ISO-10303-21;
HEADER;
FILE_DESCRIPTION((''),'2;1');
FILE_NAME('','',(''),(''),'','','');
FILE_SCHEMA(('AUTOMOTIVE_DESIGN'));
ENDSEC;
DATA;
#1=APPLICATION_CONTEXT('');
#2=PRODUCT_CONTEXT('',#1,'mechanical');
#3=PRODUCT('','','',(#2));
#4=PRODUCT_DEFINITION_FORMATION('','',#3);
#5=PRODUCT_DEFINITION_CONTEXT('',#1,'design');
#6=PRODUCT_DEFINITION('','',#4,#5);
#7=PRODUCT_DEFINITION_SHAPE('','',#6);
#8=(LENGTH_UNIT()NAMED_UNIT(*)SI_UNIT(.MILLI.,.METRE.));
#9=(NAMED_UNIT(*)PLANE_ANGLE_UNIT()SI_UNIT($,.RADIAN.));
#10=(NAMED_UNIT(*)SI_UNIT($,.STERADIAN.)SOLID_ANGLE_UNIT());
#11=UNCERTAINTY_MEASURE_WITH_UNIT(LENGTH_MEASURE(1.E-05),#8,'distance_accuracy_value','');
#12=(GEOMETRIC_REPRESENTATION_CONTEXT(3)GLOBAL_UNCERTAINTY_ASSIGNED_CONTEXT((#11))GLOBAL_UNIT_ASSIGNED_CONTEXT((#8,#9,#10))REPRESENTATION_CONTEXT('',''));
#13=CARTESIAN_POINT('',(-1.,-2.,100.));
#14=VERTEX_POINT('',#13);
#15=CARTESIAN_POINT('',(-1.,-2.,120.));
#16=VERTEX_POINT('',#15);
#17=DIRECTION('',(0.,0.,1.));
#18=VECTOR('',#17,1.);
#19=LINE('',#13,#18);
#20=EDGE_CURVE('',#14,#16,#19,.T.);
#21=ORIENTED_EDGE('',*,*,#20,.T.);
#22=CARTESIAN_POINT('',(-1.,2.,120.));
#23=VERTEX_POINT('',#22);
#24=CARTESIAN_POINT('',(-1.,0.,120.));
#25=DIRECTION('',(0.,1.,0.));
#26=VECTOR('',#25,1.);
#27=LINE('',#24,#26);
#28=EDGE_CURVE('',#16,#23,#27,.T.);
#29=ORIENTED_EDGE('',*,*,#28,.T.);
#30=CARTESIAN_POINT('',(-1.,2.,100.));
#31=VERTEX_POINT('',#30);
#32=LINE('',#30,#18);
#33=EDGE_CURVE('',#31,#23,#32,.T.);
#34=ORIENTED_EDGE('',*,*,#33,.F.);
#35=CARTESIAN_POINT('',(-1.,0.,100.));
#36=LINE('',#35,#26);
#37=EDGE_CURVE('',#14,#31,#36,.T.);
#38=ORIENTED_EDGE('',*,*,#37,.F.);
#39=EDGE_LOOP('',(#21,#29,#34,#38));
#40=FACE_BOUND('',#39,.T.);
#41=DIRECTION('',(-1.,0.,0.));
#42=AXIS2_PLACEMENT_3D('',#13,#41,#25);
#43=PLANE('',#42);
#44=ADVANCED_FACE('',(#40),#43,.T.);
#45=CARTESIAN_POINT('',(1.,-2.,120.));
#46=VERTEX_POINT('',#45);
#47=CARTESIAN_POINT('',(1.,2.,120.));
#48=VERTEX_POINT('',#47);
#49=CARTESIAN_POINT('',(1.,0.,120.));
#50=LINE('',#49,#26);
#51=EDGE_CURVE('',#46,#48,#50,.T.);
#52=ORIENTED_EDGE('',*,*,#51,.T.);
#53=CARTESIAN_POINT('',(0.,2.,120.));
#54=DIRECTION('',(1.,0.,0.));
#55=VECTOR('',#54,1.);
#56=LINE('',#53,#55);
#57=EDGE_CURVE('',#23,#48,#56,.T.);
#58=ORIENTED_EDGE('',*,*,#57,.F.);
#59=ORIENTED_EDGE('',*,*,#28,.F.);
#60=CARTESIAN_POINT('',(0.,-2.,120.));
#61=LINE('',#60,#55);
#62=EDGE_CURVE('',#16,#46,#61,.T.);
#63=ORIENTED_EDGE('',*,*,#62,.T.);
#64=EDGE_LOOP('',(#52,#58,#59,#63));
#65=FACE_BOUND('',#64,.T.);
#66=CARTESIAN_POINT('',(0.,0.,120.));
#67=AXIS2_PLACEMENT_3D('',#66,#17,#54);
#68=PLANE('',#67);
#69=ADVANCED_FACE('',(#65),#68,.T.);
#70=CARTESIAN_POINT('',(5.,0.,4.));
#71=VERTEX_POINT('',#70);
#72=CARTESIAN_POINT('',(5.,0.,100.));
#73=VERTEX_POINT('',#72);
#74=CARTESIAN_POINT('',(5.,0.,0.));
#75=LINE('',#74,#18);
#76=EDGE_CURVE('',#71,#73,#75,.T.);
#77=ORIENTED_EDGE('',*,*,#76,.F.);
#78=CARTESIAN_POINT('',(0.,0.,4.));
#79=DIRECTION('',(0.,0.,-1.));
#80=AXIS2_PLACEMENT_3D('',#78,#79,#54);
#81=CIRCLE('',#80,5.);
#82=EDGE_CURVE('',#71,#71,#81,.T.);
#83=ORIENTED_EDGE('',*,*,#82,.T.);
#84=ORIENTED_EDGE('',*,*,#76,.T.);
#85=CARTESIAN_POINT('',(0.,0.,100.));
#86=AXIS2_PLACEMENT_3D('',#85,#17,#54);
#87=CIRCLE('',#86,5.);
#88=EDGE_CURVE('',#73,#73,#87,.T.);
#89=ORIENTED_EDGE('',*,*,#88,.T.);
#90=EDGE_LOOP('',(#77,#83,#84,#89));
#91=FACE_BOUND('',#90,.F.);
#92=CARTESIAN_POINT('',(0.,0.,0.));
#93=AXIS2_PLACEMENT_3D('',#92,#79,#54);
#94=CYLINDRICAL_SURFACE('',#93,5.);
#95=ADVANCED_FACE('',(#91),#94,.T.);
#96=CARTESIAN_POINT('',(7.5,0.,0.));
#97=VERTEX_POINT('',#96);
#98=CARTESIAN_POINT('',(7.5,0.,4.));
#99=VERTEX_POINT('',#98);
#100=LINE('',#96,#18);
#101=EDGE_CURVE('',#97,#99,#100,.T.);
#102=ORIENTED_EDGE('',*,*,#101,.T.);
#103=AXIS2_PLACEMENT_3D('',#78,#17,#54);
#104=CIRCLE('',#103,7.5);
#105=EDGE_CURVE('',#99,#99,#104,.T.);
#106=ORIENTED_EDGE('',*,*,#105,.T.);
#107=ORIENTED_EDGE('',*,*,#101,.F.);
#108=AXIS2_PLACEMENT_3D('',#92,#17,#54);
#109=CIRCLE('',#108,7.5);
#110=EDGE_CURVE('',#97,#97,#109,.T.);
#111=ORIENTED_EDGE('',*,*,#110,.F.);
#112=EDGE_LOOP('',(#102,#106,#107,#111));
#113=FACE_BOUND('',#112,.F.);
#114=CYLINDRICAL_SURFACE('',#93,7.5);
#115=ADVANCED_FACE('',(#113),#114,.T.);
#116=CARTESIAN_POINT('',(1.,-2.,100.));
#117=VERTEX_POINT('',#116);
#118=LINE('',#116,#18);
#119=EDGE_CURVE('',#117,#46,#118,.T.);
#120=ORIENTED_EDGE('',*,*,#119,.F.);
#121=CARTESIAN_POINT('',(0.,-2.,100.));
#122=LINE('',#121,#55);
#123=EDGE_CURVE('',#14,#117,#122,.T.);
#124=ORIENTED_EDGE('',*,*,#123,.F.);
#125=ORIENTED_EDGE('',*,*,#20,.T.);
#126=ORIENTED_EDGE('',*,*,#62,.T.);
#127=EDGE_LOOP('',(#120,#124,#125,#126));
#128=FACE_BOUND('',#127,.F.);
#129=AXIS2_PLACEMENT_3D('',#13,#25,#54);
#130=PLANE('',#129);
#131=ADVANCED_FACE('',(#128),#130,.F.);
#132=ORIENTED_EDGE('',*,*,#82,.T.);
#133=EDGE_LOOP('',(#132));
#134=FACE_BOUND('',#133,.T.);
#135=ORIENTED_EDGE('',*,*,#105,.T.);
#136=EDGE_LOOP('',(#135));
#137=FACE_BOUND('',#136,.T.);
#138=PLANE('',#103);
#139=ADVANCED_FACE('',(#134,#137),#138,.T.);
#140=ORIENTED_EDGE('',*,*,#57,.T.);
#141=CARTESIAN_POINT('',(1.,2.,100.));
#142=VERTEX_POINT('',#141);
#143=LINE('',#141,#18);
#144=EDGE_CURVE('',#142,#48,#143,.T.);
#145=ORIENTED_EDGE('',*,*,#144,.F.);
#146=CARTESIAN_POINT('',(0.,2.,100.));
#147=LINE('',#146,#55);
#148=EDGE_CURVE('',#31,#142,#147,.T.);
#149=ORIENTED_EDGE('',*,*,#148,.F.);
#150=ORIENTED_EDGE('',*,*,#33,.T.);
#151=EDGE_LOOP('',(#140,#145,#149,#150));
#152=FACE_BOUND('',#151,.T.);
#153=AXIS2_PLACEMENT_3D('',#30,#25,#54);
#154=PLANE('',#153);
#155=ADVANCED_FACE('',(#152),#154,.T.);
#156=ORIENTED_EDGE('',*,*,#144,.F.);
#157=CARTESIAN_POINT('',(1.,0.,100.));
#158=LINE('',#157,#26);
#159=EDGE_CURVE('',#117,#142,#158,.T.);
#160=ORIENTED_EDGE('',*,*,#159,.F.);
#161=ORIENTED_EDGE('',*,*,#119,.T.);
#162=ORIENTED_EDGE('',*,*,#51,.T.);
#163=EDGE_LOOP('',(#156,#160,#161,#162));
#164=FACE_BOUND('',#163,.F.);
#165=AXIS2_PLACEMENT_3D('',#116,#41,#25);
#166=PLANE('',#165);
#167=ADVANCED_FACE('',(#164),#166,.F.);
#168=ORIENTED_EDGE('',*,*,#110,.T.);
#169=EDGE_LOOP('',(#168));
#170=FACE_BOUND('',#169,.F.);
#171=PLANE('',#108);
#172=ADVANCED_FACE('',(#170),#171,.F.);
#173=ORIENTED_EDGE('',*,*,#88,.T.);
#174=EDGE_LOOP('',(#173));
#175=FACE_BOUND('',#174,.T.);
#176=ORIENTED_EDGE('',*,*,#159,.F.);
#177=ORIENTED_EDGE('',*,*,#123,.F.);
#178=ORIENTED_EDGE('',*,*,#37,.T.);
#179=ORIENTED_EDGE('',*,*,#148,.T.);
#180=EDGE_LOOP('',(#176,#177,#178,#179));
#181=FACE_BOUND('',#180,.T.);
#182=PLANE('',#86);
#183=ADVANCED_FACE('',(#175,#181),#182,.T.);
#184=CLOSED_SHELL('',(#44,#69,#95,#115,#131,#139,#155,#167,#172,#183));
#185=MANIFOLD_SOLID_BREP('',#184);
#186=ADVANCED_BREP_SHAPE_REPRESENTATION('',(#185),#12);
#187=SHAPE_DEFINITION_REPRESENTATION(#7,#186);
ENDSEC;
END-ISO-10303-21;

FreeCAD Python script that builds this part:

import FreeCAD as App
import Part
import Sketcher


def add_polygon(sketch, points):
    """Adds a closed chain of lines whose ends are joined by coincident constraints."""
    first, n = sketch.GeometryCount, len(points)
    for a, b in zip(points, points[1:] + points[:1]):
        sketch.addGeometry(Part.LineSegment(App.Vector(*a, 0), App.Vector(*b, 0)), False)
    for i in range(n):
        sketch.addConstraint(Sketcher.Constraint("Coincident", first + i, 2, first + (i + 1) % n, 1))

doc = App.newDocument("Part")
body = doc.addObject("PartDesign::Body", "Body")

sketch1 = body.newObject("Sketcher::SketchObject", "Sketch")
sketch1.AttachmentSupport = (doc.getObject("XY_Plane"), [""])
sketch1.MapMode = "FlatFace"
sketch1.addGeometry(Part.Circle(App.Vector(0, 0, 0), App.Vector(0, 0, 1), 7.5), False)
sketch1.addConstraint(Sketcher.Constraint("Coincident", 0, 3, -1, 1))
sketch1.addConstraint(Sketcher.Constraint("Diameter", 0, 15.0))
pad1 = body.newObject("PartDesign::Pad", "Pad")
pad1.Profile = sketch1
pad1.Length = 4

sketch2 = body.newObject("Sketcher::SketchObject", "Sketch001")
sketch2.AttachmentSupport = (doc.getObject("XY_Plane"), [""])
sketch2.MapMode = "FlatFace"
sketch2.addGeometry(Part.Circle(App.Vector(0, 0, 0), App.Vector(0, 0, 1), 5), False)
sketch2.addConstraint(Sketcher.Constraint("Coincident", 0, 3, -1, 1))
sketch2.addConstraint(Sketcher.Constraint("Diameter", 0, 10.0))
pad2 = body.newObject("PartDesign::Pad", "Pad001")
pad2.Profile = sketch2
pad2.Length = 100

sketch3 = body.newObject("Sketcher::SketchObject", "Sketch002")
sketch3.AttachmentSupport = (doc.getObject("XY_Plane"), [""])
sketch3.MapMode = "FlatFace"
sketch3.AttachmentOffset = App.Placement(App.Vector(0, 0, 100), App.Rotation())
add_polygon(sketch3, [(-1, 2), (-1, -2), (1, -2), (1, 2)])
sketch3.addConstraint(Sketcher.Constraint("Vertical", 0))
sketch3.addConstraint(Sketcher.Constraint("Horizontal", 1))
sketch3.addConstraint(Sketcher.Constraint("Vertical", 2))
sketch3.addConstraint(Sketcher.Constraint("Horizontal", 3))
sketch3.addConstraint(Sketcher.Constraint("Symmetric", 0, 2, 2, 2, -1, 1))
sketch3.addConstraint(Sketcher.Constraint("DistanceX", 1, 1, 1, 2, 2.0))
sketch3.addConstraint(Sketcher.Constraint("DistanceY", 0, 2, 0, 1, 4.0))
pad3 = body.newObject("PartDesign::Pad", "Pad002")
pad3.Profile = sketch3
pad3.Length = 20

doc.recompute()
